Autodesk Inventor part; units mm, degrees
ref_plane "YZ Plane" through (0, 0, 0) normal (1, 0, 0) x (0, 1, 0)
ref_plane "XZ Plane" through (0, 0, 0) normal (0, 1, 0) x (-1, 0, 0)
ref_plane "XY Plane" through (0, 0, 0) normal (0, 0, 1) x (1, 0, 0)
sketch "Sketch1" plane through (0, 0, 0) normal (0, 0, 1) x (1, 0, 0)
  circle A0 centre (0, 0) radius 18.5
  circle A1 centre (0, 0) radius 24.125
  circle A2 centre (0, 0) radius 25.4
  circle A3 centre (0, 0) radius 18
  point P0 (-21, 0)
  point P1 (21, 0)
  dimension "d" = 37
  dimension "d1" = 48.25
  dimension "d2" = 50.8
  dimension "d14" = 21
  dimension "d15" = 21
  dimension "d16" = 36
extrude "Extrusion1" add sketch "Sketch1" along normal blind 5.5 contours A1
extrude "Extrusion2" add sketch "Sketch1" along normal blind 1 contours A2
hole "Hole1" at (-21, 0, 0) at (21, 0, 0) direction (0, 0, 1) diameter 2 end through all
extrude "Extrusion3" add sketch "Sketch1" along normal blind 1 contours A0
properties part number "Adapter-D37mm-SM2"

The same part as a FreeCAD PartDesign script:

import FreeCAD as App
import Part
import Sketcher
from FreeCAD import Vector
Q = App.Units.Quantity

doc = App.newDocument("Part")
params = doc.addObject("Spreadsheet::Sheet", "Params")
for row, (alias, value) in enumerate([
    ("sketch1_diameter", "37 mm"),
    ("sketch1_diameter2", "48.25 mm"),
    ("pad1_length", "5.5 mm"),
    ("sketch2_diameter", "50.8 mm"),
    ("sketch2_diameter2", "48.25 mm"),
    ("pad2_length", "1 mm"),
    ("sketch3_diameter", "2 mm"),
    ("hole_diameter", "2 mm"),
    ("sketch4_diameter", "37 mm"),
    ("sketch4_diameter2", "36 mm"),
    ("pad3_length", "1 mm"),
], start=1):
    params.set(f"A{row}", alias)
    params.set(f"B{row}", "=" + value)
    params.setAlias(f"B{row}", alias)

body = doc.addObject("PartDesign::Body", "Body")

sketch1 = body.newObject("Sketcher::SketchObject", "Sketch")
sketch1.AttachmentSupport = (doc.getObject("XY_Plane"), [""])
sketch1.MapMode = "FlatFace"
sketch1.addGeometry([
    Part.Circle(Vector(0, 0, 0), Vector(0, 0, 1), 24),
    Part.Circle(Vector(0, 0, 0), Vector(0, 0, 1), 18),
], False)
sketch1.addConstraint([
    Sketcher.Constraint("Coincident", 0, 3, -1, 1),
    Sketcher.Constraint("Coincident", 1, 3, -1, 1),
    Sketcher.Constraint("Diameter", 1, Q("37 mm")),
    Sketcher.Constraint("Diameter", 0, Q("48.25 mm")),
])
sketch1.setExpression("Constraints[2]", "Params.sketch1_diameter")
sketch1.setExpression("Constraints[3]", "Params.sketch1_diameter2")
pad1 = body.newObject("PartDesign::Pad", "Pad")
pad1.Profile = sketch1
pad1.setExpression("Length", "Params.pad1_length")

sketch2 = body.newObject("Sketcher::SketchObject", "Sketch001")
sketch2.AttachmentSupport = (doc.getObject("XY_Plane"), [""])
sketch2.MapMode = "FlatFace"
sketch2.addGeometry([
    Part.Circle(Vector(0, 0, 0), Vector(0, 0, 1), 25),
    Part.Circle(Vector(0, 0, 0), Vector(0, 0, 1), 24),
], False)
sketch2.addConstraint([
    Sketcher.Constraint("Coincident", 0, 3, -1, 1),
    Sketcher.Constraint("Coincident", 1, 3, -1, 1),
    Sketcher.Constraint("Diameter", 0, Q("50.8 mm")),
    Sketcher.Constraint("Diameter", 1, Q("48.25 mm")),
])
sketch2.setExpression("Constraints[2]", "Params.sketch2_diameter")
sketch2.setExpression("Constraints[3]", "Params.sketch2_diameter2")
pad2 = body.newObject("PartDesign::Pad", "Pad001")
pad2.Profile = sketch2
pad2.setExpression("Length", "Params.pad2_length")

sketch3 = body.newObject("Sketcher::SketchObject", "Sketch002")
sketch3.AttachmentSupport = (doc.getObject("XY_Plane"), [""])
sketch3.MapMode = "FlatFace"
sketch3.addGeometry([
    Part.Circle(Vector(-21, 0, 0), Vector(0, 0, 1), 1),
    Part.Circle(Vector(21, 0, 0), Vector(0, 0, 1), 1),
], False)
sketch3.addConstraint([
    Sketcher.Constraint("Equal", 0, 1),
    Sketcher.Constraint("Symmetric", 0, 3, 1, 3, -1, 1),
    Sketcher.Constraint("PointOnObject", 0, 3, -1),
    Sketcher.Constraint("Diameter", 0, Q("2 mm")),
    Sketcher.Constraint("DistanceX", 0, 3, -1, 1, Q("21 mm")),
])
sketch3.setExpression("Constraints[3]", "Params.sketch3_diameter")
doc.recompute()
hole = body.newObject("PartDesign::Hole", "Hole")
hole.Profile = sketch3
hole.ThreadType = "None"
hole.setExpression("Diameter", "Params.hole_diameter")
hole.DepthType = "ThroughAll"
hole.Reversed = True

sketch4 = body.newObject("Sketcher::SketchObject", "Sketch003")
sketch4.AttachmentSupport = (doc.getObject("XY_Plane"), [""])
sketch4.MapMode = "FlatFace"
sketch4.addGeometry([
    Part.Circle(Vector(0, 0, 0), Vector(0, 0, 1), 18),
    Part.Circle(Vector(0, 0, 0), Vector(0, 0, 1), 18),
], False)
sketch4.addConstraint([
    Sketcher.Constraint("Coincident", 0, 3, -1, 1),
    Sketcher.Constraint("Coincident", 1, 3, -1, 1),
    Sketcher.Constraint("Diameter", 0, Q("37 mm")),
    Sketcher.Constraint("Diameter", 1, Q("36 mm")),
])
sketch4.setExpression("Constraints[2]", "Params.sketch4_diameter")
sketch4.setExpression("Constraints[3]", "Params.sketch4_diameter2")
pad3 = body.newObject("PartDesign::Pad", "Pad002")
pad3.Profile = sketch4
pad3.setExpression("Length", "Params.pad3_length")

doc.recompute()
